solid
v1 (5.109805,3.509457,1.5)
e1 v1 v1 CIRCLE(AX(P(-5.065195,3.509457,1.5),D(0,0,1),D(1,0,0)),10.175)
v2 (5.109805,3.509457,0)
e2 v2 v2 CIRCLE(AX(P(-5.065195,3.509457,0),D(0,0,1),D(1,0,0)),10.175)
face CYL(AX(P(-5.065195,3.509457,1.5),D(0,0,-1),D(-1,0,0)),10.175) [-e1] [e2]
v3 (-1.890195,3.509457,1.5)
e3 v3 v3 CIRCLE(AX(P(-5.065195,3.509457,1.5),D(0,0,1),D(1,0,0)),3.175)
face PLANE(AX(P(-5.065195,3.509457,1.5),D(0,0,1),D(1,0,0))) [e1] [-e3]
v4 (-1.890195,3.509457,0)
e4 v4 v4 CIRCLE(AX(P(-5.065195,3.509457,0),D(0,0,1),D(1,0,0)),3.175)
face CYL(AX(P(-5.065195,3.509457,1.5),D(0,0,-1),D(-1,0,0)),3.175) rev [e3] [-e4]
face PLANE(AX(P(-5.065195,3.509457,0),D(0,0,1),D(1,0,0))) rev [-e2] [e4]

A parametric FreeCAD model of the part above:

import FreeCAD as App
import Part
import Sketcher

V = App.Vector
Q = App.Units.Quantity

doc = App.newDocument("Part")
body = doc.addObject("PartDesign::Body", "Body")

sketch1 = body.newObject("Sketcher::SketchObject", "Sketch")
sketch1.AttachmentSupport = (doc.getObject("XY_Plane"), [""])
sketch1.MapMode = "FlatFace"
sketch1.addGeometry([
    Part.Circle(V(-5.1, 3.5, 0), V(0, 0, 1), 10.2),
    Part.Circle(V(-5.1, 3.5, 0), V(0, 0, 1), 3.2),
], False)
sketch1.addConstraint([
    Sketcher.Constraint("Coincident", 1, 3, 0, 3),
    Sketcher.Constraint("Diameter", 0, Q("20.35 mm")),
    Sketcher.Constraint("Diameter", 1, Q("6.35 mm")),
    Sketcher.Constraint("DistanceX", 0, 3, -1, 1, Q("5.065195 mm")),
    Sketcher.Constraint("DistanceY", -1, 1, 0, 3, Q("3.509457 mm")),
])
pad1 = body.newObject("PartDesign::Pad", "Pad")
pad1.Profile = sketch1
pad1.Length = 1.5

doc.recompute()
